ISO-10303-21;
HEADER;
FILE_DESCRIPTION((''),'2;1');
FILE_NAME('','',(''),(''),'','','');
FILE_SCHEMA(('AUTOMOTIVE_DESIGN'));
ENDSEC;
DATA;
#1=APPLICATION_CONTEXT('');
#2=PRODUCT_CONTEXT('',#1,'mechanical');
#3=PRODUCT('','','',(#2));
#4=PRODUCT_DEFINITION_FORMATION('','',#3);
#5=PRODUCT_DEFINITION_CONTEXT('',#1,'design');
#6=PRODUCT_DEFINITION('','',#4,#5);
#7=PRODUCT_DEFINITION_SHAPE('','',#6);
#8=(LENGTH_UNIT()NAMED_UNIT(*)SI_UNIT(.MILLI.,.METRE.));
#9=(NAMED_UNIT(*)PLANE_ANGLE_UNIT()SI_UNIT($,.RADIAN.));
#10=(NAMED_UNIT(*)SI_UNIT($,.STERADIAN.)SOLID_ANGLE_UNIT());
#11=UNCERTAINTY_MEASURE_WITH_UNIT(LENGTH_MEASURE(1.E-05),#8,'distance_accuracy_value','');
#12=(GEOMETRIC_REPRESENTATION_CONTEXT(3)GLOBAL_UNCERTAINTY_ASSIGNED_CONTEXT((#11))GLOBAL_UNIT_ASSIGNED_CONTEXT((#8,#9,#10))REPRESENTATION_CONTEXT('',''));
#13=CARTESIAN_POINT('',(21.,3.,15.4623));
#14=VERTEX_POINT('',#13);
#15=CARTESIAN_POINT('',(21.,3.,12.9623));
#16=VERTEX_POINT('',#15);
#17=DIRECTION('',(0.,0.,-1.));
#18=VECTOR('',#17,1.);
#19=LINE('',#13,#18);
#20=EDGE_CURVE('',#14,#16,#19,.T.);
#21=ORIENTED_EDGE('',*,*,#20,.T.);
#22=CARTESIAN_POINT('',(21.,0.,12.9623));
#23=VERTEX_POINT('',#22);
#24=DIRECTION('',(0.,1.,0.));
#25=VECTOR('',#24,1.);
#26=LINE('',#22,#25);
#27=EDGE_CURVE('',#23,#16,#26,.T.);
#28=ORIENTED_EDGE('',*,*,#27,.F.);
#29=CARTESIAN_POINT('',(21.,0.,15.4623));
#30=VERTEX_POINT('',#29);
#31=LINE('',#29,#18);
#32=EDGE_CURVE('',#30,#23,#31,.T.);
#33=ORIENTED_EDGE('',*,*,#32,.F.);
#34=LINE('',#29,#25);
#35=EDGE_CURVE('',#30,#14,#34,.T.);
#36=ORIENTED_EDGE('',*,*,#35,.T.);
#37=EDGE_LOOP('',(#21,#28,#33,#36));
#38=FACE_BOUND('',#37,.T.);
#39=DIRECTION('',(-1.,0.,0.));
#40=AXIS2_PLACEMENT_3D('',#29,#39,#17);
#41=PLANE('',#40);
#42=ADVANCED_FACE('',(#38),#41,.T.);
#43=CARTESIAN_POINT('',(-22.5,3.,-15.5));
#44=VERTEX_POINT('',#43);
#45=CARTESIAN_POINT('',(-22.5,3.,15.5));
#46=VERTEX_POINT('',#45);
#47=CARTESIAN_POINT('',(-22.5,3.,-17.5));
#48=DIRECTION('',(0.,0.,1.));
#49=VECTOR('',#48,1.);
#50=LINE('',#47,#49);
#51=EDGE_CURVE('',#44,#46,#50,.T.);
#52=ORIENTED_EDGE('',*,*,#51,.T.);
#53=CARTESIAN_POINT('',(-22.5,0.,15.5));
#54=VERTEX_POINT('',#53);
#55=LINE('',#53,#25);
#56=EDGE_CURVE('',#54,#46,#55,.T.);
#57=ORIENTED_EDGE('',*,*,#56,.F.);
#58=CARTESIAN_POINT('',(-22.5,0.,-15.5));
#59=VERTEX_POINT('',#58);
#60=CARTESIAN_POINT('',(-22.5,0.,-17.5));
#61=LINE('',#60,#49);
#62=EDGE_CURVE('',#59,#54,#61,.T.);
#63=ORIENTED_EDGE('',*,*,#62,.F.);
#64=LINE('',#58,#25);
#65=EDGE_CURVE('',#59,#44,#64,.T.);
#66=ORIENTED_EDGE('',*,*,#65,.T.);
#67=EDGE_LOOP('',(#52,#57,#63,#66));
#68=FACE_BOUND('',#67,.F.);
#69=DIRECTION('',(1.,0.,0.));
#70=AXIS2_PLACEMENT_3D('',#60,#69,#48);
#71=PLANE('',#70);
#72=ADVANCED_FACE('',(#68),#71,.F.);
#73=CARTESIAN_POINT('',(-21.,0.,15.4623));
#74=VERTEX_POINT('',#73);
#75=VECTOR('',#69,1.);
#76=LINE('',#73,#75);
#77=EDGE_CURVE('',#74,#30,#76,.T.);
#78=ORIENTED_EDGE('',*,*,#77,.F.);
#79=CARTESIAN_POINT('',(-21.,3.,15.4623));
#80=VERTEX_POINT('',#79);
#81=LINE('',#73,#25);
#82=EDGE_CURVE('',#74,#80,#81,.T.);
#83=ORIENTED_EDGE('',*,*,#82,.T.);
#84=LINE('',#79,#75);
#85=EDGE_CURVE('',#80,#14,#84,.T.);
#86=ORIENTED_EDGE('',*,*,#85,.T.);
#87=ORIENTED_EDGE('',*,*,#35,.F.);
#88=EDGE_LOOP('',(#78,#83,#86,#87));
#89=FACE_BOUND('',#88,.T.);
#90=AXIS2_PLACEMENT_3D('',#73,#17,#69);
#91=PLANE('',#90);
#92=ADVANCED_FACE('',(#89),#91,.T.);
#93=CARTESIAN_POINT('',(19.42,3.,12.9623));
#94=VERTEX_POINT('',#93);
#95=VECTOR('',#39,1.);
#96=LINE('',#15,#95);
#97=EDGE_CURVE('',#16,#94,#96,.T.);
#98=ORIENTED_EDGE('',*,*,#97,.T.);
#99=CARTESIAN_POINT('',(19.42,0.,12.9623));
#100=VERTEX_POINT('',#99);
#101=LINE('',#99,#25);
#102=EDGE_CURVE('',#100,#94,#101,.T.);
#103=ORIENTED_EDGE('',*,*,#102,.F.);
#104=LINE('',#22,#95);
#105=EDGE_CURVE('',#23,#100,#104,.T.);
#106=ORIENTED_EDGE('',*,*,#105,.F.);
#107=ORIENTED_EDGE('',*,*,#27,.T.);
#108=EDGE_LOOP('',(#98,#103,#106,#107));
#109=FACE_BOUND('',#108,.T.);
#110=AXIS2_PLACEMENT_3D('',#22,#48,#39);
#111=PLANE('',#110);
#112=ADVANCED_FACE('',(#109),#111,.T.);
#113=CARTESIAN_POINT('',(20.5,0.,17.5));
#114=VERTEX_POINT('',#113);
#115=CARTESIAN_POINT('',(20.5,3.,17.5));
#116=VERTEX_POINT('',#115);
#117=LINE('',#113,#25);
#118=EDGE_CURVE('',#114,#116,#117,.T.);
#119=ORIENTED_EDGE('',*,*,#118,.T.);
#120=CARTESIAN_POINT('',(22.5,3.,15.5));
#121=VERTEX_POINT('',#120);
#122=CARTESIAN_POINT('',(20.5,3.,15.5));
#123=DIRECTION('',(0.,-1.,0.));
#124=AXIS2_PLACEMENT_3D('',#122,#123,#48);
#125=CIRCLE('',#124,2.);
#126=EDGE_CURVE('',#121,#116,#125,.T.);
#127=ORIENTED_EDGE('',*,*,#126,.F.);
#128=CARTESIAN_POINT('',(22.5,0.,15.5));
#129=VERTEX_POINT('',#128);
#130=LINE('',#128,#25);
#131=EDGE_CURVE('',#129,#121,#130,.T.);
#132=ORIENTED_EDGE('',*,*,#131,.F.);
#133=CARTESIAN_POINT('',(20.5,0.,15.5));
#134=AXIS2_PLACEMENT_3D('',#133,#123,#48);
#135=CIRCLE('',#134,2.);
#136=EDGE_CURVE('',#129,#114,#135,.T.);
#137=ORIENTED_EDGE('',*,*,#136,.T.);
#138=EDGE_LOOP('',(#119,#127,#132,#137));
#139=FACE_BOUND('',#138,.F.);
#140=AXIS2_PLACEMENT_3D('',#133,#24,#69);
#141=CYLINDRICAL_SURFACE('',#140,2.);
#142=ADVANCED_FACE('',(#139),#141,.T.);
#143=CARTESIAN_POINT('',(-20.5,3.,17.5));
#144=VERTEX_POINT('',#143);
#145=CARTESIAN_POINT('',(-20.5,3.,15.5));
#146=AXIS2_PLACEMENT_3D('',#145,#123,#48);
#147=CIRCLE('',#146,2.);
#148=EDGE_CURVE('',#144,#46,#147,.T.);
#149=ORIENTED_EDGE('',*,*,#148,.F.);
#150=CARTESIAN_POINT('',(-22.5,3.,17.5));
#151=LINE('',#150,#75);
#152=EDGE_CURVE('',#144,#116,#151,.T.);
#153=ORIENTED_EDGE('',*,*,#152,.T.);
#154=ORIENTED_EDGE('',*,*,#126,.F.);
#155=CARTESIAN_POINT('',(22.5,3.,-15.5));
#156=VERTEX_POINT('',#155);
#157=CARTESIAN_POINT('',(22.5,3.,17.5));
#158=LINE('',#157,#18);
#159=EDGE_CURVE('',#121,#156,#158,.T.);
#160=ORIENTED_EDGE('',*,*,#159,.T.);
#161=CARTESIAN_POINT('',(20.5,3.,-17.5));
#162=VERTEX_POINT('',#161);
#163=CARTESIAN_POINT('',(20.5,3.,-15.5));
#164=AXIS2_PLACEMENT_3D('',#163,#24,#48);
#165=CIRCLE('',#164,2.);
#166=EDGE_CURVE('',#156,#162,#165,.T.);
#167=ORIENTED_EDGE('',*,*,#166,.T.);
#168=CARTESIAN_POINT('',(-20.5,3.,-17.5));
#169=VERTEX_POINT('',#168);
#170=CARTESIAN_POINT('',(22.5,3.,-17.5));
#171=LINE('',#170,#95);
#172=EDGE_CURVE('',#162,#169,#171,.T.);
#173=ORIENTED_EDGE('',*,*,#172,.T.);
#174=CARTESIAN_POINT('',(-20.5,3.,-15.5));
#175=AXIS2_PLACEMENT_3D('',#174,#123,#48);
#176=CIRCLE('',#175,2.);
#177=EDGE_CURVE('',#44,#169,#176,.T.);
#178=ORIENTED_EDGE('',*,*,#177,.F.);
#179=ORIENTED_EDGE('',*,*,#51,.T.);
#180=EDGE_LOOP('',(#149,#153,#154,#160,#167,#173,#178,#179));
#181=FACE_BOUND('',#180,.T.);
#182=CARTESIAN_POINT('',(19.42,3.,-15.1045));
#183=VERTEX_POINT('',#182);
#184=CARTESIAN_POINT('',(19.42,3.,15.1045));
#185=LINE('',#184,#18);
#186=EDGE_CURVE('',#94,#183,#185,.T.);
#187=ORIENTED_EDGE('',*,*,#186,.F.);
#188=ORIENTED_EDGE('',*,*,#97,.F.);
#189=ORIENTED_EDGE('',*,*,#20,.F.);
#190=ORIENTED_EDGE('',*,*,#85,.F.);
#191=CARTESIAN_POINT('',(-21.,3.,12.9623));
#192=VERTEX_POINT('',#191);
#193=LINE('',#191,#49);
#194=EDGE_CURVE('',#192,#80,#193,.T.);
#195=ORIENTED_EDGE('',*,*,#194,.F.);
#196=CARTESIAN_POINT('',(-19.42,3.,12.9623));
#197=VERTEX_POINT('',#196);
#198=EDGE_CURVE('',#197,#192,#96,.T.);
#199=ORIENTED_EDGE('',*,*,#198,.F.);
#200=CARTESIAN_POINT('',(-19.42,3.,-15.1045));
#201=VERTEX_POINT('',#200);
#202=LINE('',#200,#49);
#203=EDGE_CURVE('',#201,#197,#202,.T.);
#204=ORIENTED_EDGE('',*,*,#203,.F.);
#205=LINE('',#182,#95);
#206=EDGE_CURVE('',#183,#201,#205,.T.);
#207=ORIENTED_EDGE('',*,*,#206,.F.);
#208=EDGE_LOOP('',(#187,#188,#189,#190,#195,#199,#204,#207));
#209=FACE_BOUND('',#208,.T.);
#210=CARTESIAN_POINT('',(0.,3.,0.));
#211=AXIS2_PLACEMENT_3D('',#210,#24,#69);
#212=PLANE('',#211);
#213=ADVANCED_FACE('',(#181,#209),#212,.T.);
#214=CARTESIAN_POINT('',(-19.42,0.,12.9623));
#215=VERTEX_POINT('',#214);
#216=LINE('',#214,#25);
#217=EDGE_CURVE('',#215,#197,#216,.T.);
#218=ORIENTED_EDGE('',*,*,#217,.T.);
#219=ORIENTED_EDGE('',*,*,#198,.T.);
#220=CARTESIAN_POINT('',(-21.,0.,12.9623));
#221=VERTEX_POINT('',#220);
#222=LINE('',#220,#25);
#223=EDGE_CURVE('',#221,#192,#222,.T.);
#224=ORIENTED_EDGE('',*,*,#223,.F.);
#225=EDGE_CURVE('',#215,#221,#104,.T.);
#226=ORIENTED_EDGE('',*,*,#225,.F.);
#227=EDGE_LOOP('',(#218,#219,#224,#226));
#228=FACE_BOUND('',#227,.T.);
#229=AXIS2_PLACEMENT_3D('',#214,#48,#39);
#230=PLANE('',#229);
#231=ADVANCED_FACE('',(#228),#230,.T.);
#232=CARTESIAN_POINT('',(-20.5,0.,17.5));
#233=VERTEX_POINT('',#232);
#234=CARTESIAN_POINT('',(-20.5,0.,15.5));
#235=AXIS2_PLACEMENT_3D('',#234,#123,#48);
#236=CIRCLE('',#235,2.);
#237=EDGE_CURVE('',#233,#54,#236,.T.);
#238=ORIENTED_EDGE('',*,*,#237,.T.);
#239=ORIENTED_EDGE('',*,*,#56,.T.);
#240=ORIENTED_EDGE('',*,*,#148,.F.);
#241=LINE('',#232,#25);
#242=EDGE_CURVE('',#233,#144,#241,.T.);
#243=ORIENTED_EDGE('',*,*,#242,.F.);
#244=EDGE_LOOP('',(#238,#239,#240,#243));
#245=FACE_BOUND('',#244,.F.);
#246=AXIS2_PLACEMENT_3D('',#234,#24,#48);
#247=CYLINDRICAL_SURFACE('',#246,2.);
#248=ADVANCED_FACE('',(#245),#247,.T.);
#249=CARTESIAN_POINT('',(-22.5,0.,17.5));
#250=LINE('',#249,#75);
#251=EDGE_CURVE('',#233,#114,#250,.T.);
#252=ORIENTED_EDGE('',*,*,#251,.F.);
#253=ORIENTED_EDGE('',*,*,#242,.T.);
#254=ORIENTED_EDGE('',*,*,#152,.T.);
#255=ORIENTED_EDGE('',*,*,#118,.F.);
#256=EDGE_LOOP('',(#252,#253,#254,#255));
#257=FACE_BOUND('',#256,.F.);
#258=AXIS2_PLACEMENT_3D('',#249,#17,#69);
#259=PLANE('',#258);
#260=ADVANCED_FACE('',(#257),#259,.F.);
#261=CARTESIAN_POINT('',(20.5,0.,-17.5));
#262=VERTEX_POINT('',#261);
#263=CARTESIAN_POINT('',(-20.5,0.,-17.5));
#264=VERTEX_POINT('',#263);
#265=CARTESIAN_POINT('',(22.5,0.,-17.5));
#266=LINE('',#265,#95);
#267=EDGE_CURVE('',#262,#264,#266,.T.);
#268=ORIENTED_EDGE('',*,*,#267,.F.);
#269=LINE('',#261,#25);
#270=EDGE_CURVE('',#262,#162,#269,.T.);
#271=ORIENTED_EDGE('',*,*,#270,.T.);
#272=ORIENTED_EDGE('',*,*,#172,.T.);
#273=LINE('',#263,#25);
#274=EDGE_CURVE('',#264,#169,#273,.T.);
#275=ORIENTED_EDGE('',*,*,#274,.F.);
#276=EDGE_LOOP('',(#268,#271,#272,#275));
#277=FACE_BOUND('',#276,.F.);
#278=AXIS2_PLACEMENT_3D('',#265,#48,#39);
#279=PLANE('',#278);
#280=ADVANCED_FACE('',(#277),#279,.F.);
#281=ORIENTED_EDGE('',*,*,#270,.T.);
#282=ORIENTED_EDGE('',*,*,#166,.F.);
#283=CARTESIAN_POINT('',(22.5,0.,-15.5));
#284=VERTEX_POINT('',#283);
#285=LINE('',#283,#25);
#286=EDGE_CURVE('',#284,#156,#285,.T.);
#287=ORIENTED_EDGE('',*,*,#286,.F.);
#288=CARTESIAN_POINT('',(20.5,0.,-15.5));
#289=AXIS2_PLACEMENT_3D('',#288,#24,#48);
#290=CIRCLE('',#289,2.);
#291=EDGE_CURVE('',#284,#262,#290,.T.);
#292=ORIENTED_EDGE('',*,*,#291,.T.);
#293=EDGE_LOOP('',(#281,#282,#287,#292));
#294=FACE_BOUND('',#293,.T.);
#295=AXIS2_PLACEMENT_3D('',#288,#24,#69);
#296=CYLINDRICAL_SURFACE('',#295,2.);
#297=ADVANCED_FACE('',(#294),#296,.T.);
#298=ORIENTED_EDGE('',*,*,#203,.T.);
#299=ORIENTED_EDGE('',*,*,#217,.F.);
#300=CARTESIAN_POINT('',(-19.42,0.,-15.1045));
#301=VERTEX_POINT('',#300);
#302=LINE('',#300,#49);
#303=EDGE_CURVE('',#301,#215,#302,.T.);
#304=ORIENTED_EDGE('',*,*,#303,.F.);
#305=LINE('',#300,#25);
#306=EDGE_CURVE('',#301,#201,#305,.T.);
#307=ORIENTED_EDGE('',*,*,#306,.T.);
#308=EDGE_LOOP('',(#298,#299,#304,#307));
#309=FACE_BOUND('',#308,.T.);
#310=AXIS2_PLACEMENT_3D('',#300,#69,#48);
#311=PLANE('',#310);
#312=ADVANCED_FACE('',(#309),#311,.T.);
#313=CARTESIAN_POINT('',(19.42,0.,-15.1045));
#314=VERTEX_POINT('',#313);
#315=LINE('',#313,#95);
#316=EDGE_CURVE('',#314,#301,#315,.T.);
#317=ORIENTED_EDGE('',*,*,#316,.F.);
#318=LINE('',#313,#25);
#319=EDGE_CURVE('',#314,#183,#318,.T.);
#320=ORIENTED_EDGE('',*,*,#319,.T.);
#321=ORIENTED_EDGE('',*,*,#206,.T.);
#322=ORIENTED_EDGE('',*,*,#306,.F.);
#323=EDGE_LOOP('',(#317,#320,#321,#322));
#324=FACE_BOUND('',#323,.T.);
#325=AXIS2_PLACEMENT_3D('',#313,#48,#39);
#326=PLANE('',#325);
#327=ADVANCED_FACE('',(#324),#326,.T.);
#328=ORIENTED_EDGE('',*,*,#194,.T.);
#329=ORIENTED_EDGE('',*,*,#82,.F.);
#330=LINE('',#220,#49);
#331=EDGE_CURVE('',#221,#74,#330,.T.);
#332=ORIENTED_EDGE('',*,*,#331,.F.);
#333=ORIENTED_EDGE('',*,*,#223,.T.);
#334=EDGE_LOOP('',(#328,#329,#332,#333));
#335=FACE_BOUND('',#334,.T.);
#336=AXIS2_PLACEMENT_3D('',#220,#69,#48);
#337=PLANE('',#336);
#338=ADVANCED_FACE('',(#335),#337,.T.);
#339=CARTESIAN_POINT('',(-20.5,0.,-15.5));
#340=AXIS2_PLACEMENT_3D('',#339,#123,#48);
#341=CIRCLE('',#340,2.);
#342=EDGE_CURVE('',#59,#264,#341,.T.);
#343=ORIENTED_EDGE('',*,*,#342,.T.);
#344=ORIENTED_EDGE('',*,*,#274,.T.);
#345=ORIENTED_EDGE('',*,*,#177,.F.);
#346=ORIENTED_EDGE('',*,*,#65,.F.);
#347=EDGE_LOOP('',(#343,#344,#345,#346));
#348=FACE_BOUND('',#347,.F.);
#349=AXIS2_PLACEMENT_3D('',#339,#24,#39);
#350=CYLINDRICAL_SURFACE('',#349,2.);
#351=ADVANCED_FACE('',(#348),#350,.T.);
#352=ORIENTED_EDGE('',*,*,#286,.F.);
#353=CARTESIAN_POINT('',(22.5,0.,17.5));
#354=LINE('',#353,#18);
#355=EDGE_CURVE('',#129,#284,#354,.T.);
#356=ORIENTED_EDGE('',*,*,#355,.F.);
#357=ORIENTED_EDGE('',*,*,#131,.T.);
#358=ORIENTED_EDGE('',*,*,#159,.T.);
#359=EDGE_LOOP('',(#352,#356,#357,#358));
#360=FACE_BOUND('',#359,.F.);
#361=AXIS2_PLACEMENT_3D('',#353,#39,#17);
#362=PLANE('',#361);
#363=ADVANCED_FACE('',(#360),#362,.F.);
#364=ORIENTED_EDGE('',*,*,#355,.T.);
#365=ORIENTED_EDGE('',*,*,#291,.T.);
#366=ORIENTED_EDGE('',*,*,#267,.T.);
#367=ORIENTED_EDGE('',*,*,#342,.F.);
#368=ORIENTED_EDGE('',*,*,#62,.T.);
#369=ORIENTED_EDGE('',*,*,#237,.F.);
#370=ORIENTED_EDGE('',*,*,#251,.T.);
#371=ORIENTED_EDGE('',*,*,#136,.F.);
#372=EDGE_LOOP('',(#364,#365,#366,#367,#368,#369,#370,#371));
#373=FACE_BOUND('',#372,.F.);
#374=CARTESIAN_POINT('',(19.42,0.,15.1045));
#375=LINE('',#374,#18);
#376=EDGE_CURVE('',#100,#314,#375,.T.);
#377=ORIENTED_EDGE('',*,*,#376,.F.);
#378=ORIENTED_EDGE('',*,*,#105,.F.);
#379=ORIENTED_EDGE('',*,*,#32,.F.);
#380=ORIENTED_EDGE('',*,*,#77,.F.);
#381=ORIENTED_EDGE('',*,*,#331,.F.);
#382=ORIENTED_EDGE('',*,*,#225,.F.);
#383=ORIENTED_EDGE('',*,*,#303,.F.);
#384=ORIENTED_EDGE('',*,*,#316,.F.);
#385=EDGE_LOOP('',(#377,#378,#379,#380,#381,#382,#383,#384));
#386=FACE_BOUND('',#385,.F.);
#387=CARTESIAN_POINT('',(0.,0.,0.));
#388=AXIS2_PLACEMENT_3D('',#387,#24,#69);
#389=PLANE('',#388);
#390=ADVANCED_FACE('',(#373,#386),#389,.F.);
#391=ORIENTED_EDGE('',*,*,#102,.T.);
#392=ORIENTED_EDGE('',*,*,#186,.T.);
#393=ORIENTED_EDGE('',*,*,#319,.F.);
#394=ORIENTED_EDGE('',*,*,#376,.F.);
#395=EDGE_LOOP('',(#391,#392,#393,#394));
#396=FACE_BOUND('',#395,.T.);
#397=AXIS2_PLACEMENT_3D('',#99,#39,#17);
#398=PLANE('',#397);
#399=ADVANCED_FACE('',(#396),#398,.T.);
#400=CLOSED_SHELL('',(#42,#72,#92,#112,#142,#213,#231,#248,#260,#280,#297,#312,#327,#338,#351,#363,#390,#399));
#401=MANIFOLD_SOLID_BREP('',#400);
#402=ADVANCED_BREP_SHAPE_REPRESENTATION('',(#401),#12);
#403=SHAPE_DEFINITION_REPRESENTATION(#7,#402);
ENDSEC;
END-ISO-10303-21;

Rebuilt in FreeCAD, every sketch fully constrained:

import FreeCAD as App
import Part
import Sketcher
Q = App.Units.Quantity


def edges_at(feature, points):
    """Names of the edges that pass closest to the given points."""
    edges = feature.Shape.Edges
    near = lambda p: min(range(len(edges)), key=lambda i: edges[i].distToShape(Part.Vertex(*p))[0])
    return sorted({f"Edge{near(p) + 1}" for p in points})

doc = App.newDocument("Part")
body = doc.addObject("PartDesign::Body", "Body")

sketch1 = body.newObject("Sketcher::SketchObject", "Sketch")
sketch1.AttachmentSupport = (doc.getObject("XZ_Plane"), [""])
sketch1.MapMode = "FlatFace"
sketch1.addGeometry(Part.LineSegment(App.Vector(22.5, 17.5, 0), App.Vector(22.5, -17.5, 0)), False)
sketch1.addGeometry(Part.LineSegment(App.Vector(22.5, -17.5, 0), App.Vector(-22.5, -17.5, 0)), False)
sketch1.addGeometry(Part.LineSegment(App.Vector(-22.5, -17.5, 0), App.Vector(-22.5, 17.5, 0)), False)
sketch1.addGeometry(Part.LineSegment(App.Vector(-22.5, 17.5, 0), App.Vector(22.5, 17.5, 0)), False)
sketch1.addGeometry(Part.LineSegment(App.Vector(19.4, 13, 0), App.Vector(21, 13, 0)), False)
sketch1.addGeometry(Part.LineSegment(App.Vector(21, 13, 0), App.Vector(21, 15.5, 0)), False)
sketch1.addGeometry(Part.LineSegment(App.Vector(21, 15.5, 0), App.Vector(-21, 15.5, 0)), False)
sketch1.addGeometry(Part.LineSegment(App.Vector(-21, 15.5, 0), App.Vector(-21, 13, 0)), False)
sketch1.addGeometry(Part.LineSegment(App.Vector(-21, 13, 0), App.Vector(-19.4, 13, 0)), False)
sketch1.addGeometry(Part.LineSegment(App.Vector(-19.4, 13, 0), App.Vector(-19.4, -15.1, 0)), False)
sketch1.addGeometry(Part.LineSegment(App.Vector(-19.4, -15.1, 0), App.Vector(19.4, -15.1, 0)), False)
sketch1.addGeometry(Part.LineSegment(App.Vector(19.4, -15.1, 0), App.Vector(19.4, 13, 0)), False)
sketch1.addConstraint(Sketcher.Constraint("Coincident", 0, 2, 1, 1))
sketch1.addConstraint(Sketcher.Constraint("Coincident", 1, 2, 2, 1))
sketch1.addConstraint(Sketcher.Constraint("Coincident", 2, 2, 3, 1))
sketch1.addConstraint(Sketcher.Constraint("Coincident", 3, 2, 0, 1))
sketch1.addConstraint(Sketcher.Constraint("Coincident", 4, 2, 5, 1))
sketch1.addConstraint(Sketcher.Constraint("Coincident", 5, 2, 6, 1))
sketch1.addConstraint(Sketcher.Constraint("Coincident", 6, 2, 7, 1))
sketch1.addConstraint(Sketcher.Constraint("Coincident", 7, 2, 8, 1))
sketch1.addConstraint(Sketcher.Constraint("Coincident", 8, 2, 9, 1))
sketch1.addConstraint(Sketcher.Constraint("Coincident", 9, 2, 10, 1))
sketch1.addConstraint(Sketcher.Constraint("Coincident", 10, 2, 11, 1))
sketch1.addConstraint(Sketcher.Constraint("Coincident", 11, 2, 4, 1))
sketch1.addConstraint(Sketcher.Constraint("Vertical", 0))
sketch1.addConstraint(Sketcher.Constraint("Horizontal", 1))
sketch1.addConstraint(Sketcher.Constraint("Vertical", 2))
sketch1.addConstraint(Sketcher.Constraint("Horizontal", 3))
sketch1.addConstraint(Sketcher.Constraint("Horizontal", 4))
sketch1.addConstraint(Sketcher.Constraint("Vertical", 5))
sketch1.addConstraint(Sketcher.Constraint("Horizontal", 6))
sketch1.addConstraint(Sketcher.Constraint("Vertical", 7))
sketch1.addConstraint(Sketcher.Constraint("Horizontal", 8))
sketch1.addConstraint(Sketcher.Constraint("Vertical", 9))
sketch1.addConstraint(Sketcher.Constraint("Horizontal", 10))
sketch1.addConstraint(Sketcher.Constraint("Vertical", 11))
sketch1.addConstraint(Sketcher.Constraint("Symmetric", 0, 2, 2, 2, -1, 1))
sketch1.addConstraint(Sketcher.Constraint("Symmetric", 4, 2, 7, 2, -2))
sketch1.addConstraint(Sketcher.Constraint("Equal", 4, 8))
sketch1.addConstraint(Sketcher.Constraint("DistanceX", 1, 2, 1, 1, Q("45 mm")))
sketch1.addConstraint(Sketcher.Constraint("DistanceX", 6, 2, 6, 1, Q("42 mm")))
sketch1.addConstraint(Sketcher.Constraint("DistanceY", 0, 2, 0, 1, Q("35 mm")))
sketch1.addConstraint(Sketcher.Constraint("DistanceY", 5, 1, 5, 2, Q("2.5 mm")))
sketch1.addConstraint(Sketcher.Constraint("DistanceX", 4, 1, 4, 2, Q("1.58 mm")))
sketch1.addConstraint(Sketcher.Constraint("DistanceY", 9, 2, 9, 1, Q("28.0668 mm")))
sketch1.addConstraint(Sketcher.Constraint("DistanceY", -1, 1, 4, 2, Q("12.9623 mm")))
pad1 = body.newObject("PartDesign::Pad", "Pad")
pad1.Profile = sketch1
pad1.Length = 3
pad1.Reversed = True
doc.recompute()

fillet = body.newObject("PartDesign::Fillet", "Fillet")
fillet.Base = (pad1, edges_at(pad1, [
    (22.5, 1.5, 17.5),
    (22.5, 1.5, -17.5),
    (-22.5, 1.5, 17.5),
    (-22.5, 1.5, -17.5),
]))
fillet.Radius = 2

doc.recompute()
